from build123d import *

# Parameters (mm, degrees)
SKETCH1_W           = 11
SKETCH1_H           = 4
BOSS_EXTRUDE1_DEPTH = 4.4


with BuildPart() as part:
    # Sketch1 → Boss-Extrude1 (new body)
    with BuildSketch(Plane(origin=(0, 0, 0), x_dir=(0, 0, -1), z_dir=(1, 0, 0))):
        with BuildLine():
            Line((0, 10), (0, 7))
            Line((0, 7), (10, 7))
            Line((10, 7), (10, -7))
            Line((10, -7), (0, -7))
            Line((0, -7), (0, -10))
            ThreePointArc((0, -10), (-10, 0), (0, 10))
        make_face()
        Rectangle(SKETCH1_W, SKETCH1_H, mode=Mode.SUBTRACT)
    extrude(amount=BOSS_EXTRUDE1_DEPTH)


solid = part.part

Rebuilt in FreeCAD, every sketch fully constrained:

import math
import FreeCAD as App
import Part
import Sketcher
from FreeCAD import Vector

doc = App.newDocument("Part")
body = doc.addObject("PartDesign::Body", "Body")

# Sketch on YZ plane
sketch1 = body.newObject("Sketcher::SketchObject", "Sketch")
sketch1.AttachmentSupport = (doc.getObject("YZ_Plane"), [""])
sketch1.MapMode = "FlatFace"
sketch1.addGeometry(Part.LineSegment(Vector(7, 0, 0), Vector(10, 0, 0)), False)
sketch1.addGeometry(Part.ArcOfCircle(Part.Circle(Vector(0, 0, 0), Vector(0, 0, 1), 10), math.radians(0), math.radians(180)), False)
sketch1.addGeometry(Part.LineSegment(Vector(-10, 0, 0), Vector(-7, 0, 0)), False)
sketch1.addGeometry(Part.LineSegment(Vector(-7, 0, 0), Vector(-7, -10, 0)), False)
sketch1.addGeometry(Part.LineSegment(Vector(-7, -10, 0), Vector(7, -10, 0)), False)
sketch1.addGeometry(Part.LineSegment(Vector(7, -10, 0), Vector(7, 0, 0)), False)
sketch1.addGeometry(Part.LineSegment(Vector(-2, 5.5, 0), Vector(2, 5.5, 0)), False)
sketch1.addGeometry(Part.LineSegment(Vector(2, 5.5, 0), Vector(2, -5.5, 0)), False)
sketch1.addGeometry(Part.LineSegment(Vector(2, -5.5, 0), Vector(-2, -5.5, 0)), False)
sketch1.addGeometry(Part.LineSegment(Vector(-2, -5.5, 0), Vector(-2, 5.5, 0)), False)
sketch1.addConstraint(Sketcher.Constraint("Coincident", 0, 2, 1, 1))
sketch1.addConstraint(Sketcher.Constraint("Coincident", 1, 2, 2, 1))
sketch1.addConstraint(Sketcher.Constraint("Coincident", 2, 2, 3, 1))
sketch1.addConstraint(Sketcher.Constraint("Coincident", 3, 2, 4, 1))
sketch1.addConstraint(Sketcher.Constraint("Coincident", 4, 2, 5, 1))
sketch1.addConstraint(Sketcher.Constraint("Coincident", 5, 2, 0, 1))
sketch1.addConstraint(Sketcher.Constraint("Coincident", 6, 2, 7, 1))
sketch1.addConstraint(Sketcher.Constraint("Coincident", 7, 2, 8, 1))
sketch1.addConstraint(Sketcher.Constraint("Coincident", 8, 2, 9, 1))
sketch1.addConstraint(Sketcher.Constraint("Coincident", 9, 2, 6, 1))
sketch1.addConstraint(Sketcher.Constraint("Horizontal", 0))
sketch1.addConstraint(Sketcher.Constraint("Horizontal", 2))
sketch1.addConstraint(Sketcher.Constraint("Vertical", 3))
sketch1.addConstraint(Sketcher.Constraint("Horizontal", 4))
sketch1.addConstraint(Sketcher.Constraint("Vertical", 5))
sketch1.addConstraint(Sketcher.Constraint("Horizontal", 6))
sketch1.addConstraint(Sketcher.Constraint("Vertical", 7))
sketch1.addConstraint(Sketcher.Constraint("Horizontal", 8))
sketch1.addConstraint(Sketcher.Constraint("Vertical", 9))
sketch1.addConstraint(Sketcher.Constraint("Coincident", 1, 3, -1, 1))
sketch1.addConstraint(Sketcher.Constraint("Symmetric", 2, 2, 5, 2, -1, 1))
sketch1.addConstraint(Sketcher.Constraint("Symmetric", 6, 2, 8, 2, -1, 1))
sketch1.addConstraint(Sketcher.Constraint("PointOnObject", 0, 2, -1))
sketch1.addConstraint(Sketcher.Constraint("Radius", 1, 10.0))
sketch1.addConstraint(Sketcher.Constraint("DistanceX", 0, 1, 0, 2, 3.0))
sketch1.addConstraint(Sketcher.Constraint("DistanceX", 6, 1, 6, 2, 4.0))
sketch1.addConstraint(Sketcher.Constraint("DistanceY", 3, 2, 3, 1, 10.0))
sketch1.addConstraint(Sketcher.Constraint("DistanceY", 7, 2, 7, 1, 11.0))
pad1 = body.newObject("PartDesign::Pad", "Pad")
pad1.Profile = sketch1
pad1.Length = 4.4

doc.recompute()
